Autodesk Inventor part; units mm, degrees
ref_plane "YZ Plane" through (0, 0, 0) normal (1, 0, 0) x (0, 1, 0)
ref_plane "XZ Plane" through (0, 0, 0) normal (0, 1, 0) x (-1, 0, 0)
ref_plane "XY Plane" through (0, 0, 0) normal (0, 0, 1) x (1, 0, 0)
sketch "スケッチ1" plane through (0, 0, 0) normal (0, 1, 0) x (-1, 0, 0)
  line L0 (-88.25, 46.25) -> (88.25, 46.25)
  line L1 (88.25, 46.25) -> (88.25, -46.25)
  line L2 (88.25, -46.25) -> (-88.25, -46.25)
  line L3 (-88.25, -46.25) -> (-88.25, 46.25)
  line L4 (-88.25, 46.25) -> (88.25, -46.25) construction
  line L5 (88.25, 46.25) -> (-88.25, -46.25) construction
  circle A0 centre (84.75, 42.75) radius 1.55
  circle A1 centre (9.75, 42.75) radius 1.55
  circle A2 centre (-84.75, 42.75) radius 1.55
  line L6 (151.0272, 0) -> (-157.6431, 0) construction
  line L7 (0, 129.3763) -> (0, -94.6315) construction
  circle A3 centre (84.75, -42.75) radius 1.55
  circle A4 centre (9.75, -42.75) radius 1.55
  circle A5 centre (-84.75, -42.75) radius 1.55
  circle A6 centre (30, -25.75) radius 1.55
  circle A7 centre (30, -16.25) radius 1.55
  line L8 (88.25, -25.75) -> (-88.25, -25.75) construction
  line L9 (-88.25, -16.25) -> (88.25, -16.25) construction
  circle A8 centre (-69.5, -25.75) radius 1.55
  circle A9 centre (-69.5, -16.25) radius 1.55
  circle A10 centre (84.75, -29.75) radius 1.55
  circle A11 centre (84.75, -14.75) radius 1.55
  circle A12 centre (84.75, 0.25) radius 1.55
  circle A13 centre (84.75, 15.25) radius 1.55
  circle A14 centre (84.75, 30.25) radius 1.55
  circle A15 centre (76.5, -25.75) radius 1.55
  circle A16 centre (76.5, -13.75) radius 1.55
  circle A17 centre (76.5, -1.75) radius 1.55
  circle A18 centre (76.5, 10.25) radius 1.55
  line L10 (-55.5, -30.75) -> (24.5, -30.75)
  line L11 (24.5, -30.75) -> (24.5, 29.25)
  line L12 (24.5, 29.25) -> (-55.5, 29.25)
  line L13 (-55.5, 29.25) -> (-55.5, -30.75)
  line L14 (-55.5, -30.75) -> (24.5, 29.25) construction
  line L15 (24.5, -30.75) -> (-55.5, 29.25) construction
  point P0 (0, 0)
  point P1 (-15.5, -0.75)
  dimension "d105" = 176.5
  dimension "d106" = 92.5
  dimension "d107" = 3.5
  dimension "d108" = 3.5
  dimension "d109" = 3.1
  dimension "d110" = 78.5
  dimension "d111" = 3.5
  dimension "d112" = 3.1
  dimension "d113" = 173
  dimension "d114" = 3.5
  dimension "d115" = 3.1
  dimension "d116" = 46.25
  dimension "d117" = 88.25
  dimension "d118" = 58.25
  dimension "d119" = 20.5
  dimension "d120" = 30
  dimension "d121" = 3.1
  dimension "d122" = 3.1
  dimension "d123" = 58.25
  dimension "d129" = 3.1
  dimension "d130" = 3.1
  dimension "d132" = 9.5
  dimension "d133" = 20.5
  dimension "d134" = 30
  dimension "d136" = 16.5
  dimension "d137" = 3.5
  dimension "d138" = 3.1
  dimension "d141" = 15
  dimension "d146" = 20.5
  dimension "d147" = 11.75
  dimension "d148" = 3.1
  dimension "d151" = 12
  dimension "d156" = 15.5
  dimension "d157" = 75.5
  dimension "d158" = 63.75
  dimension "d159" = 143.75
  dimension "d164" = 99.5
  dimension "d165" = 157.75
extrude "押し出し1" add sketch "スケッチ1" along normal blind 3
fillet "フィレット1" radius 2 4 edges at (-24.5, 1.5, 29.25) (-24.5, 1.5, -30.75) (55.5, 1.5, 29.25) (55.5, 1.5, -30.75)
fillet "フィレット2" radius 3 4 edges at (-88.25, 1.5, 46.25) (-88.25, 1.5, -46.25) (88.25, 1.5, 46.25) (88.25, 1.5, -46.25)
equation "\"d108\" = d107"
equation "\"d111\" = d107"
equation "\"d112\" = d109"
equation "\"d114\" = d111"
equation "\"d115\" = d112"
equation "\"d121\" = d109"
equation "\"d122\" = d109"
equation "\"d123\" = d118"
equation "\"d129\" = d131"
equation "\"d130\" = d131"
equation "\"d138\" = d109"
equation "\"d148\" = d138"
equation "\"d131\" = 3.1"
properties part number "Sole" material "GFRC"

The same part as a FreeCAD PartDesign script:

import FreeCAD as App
import Part
import Sketcher

V = App.Vector
Q = App.Units.Quantity


def edges_at(feature, points):
    """Names of the edges that pass closest to the given points."""
    edges = feature.Shape.Edges
    near = lambda p: min(range(len(edges)), key=lambda i: edges[i].distToShape(Part.Vertex(*p))[0])
    return sorted({f"Edge{near(p) + 1}" for p in points})

doc = App.newDocument("Part")
body = doc.addObject("PartDesign::Body", "Body")

# Sketch on XZ plane
sketch1 = doc.addObject("Sketcher::SketchObject", "Sketch")
body.addObject(sketch1)
sketch1.AttachmentSupport = (doc.XZ_Plane, [""])
sketch1.MapMode = "FlatFace"
sketch1.addGeometry(Part.LineSegment(V(-88.25, 46.25, 0), V(88.25, 46.25, 0)), False)
sketch1.addGeometry(Part.LineSegment(V(88.25, 46.25, 0), V(88.25, -46.25, 0)), False)
sketch1.addGeometry(Part.LineSegment(V(88.25, -46.25, 0), V(-88.25, -46.25, 0)), False)
sketch1.addGeometry(Part.LineSegment(V(-88.25, -46.25, 0), V(-88.25, 46.25, 0)), False)
sketch1.addGeometry(Part.Circle(V(84.75, -42.75, 0), V(0, 0, 1), 1.55), False)
sketch1.addGeometry(Part.Circle(V(69.5, -25.75, 0), V(0, 0, 1), 1.55), False)
sketch1.addGeometry(Part.Circle(V(69.5, -16.25, 0), V(0, 0, 1), 1.55), False)
sketch1.addGeometry(Part.LineSegment(V(-24.5, -30.75, 0), V(55.5, -30.75, 0)), False)
sketch1.addGeometry(Part.LineSegment(V(55.5, -30.75, 0), V(55.5, 29.25, 0)), False)
sketch1.addGeometry(Part.LineSegment(V(55.5, 29.25, 0), V(-24.5, 29.25, 0)), False)
sketch1.addGeometry(Part.LineSegment(V(-24.5, 29.25, 0), V(-24.5, -30.75, 0)), False)
sketch1.addGeometry(Part.Circle(V(-9.75, -42.75, 0), V(0, 0, 1), 1.55), False)
sketch1.addGeometry(Part.Circle(V(-30, -25.75, 0), V(0, 0, 1), 1.55), False)
sketch1.addGeometry(Part.Circle(V(-84.75, -42.75, 0), V(0, 0, 1), 1.55), False)
sketch1.addGeometry(Part.Circle(V(-84.75, -29.75, 0), V(0, 0, 1), 1.55), False)
sketch1.addGeometry(Part.Circle(V(-76.5, -25.75, 0), V(0, 0, 1), 1.55), False)
sketch1.addGeometry(Part.Circle(V(-30, -16.25, 0), V(0, 0, 1), 1.55), False)
sketch1.addGeometry(Part.Circle(V(-76.5, -13.75, 0), V(0, 0, 1), 1.55), False)
sketch1.addGeometry(Part.Circle(V(-84.75, -14.75, 0), V(0, 0, 1), 1.55), False)
sketch1.addGeometry(Part.Circle(V(-76.5, -1.75, 0), V(0, 0, 1), 1.55), False)
sketch1.addGeometry(Part.Circle(V(84.75, 42.75, 0), V(0, 0, 1), 1.55), False)
sketch1.addGeometry(Part.Circle(V(-84.75, 0.25, 0), V(0, 0, 1), 1.55), False)
sketch1.addGeometry(Part.Circle(V(-76.5, 10.25, 0), V(0, 0, 1), 1.55), False)
sketch1.addGeometry(Part.Circle(V(-84.75, 15.25, 0), V(0, 0, 1), 1.55), False)
sketch1.addGeometry(Part.Circle(V(-9.75, 42.75, 0), V(0, 0, 1), 1.55), False)
sketch1.addGeometry(Part.Circle(V(-84.75, 30.25, 0), V(0, 0, 1), 1.55), False)
sketch1.addGeometry(Part.Circle(V(-84.75, 42.75, 0), V(0, 0, 1), 1.55), False)
sketch1.addConstraint(Sketcher.Constraint("Coincident", 0, 2, 1, 1))
sketch1.addConstraint(Sketcher.Constraint("Coincident", 1, 2, 2, 1))
sketch1.addConstraint(Sketcher.Constraint("Coincident", 2, 2, 3, 1))
sketch1.addConstraint(Sketcher.Constraint("Coincident", 3, 2, 0, 1))
sketch1.addConstraint(Sketcher.Constraint("Coincident", 7, 2, 8, 1))
sketch1.addConstraint(Sketcher.Constraint("Coincident", 8, 2, 9, 1))
sketch1.addConstraint(Sketcher.Constraint("Coincident", 9, 2, 10, 1))
sketch1.addConstraint(Sketcher.Constraint("Coincident", 10, 2, 7, 1))
sketch1.addConstraint(Sketcher.Constraint("Horizontal", 0))
sketch1.addConstraint(Sketcher.Constraint("Vertical", 1))
sketch1.addConstraint(Sketcher.Constraint("Horizontal", 2))
sketch1.addConstraint(Sketcher.Constraint("Vertical", 3))
sketch1.addConstraint(Sketcher.Constraint("Horizontal", 7))
sketch1.addConstraint(Sketcher.Constraint("Vertical", 8))
sketch1.addConstraint(Sketcher.Constraint("Horizontal", 9))
sketch1.addConstraint(Sketcher.Constraint("Vertical", 10))
sketch1.addConstraint(Sketcher.Constraint("Equal", 4, 5))
sketch1.addConstraint(Sketcher.Constraint("Equal", 5, 6))
sketch1.addConstraint(Sketcher.Constraint("Equal", 6, 11))
sketch1.addConstraint(Sketcher.Constraint("Equal", 11, 12))
sketch1.addConstraint(Sketcher.Constraint("Equal", 12, 13))
sketch1.addConstraint(Sketcher.Constraint("Equal", 13, 14))
sketch1.addConstraint(Sketcher.Constraint("Equal", 14, 15))
sketch1.addConstraint(Sketcher.Constraint("Equal", 15, 16))
sketch1.addConstraint(Sketcher.Constraint("Equal", 16, 17))
sketch1.addConstraint(Sketcher.Constraint("Equal", 17, 18))
sketch1.addConstraint(Sketcher.Constraint("Equal", 18, 19))
sketch1.addConstraint(Sketcher.Constraint("Equal", 19, 20))
sketch1.addConstraint(Sketcher.Constraint("Equal", 20, 21))
sketch1.addConstraint(Sketcher.Constraint("Equal", 21, 22))
sketch1.addConstraint(Sketcher.Constraint("Equal", 22, 23))
sketch1.addConstraint(Sketcher.Constraint("Equal", 23, 24))
sketch1.addConstraint(Sketcher.Constraint("Equal", 24, 25))
sketch1.addConstraint(Sketcher.Constraint("Equal", 25, 26))
sketch1.addConstraint(Sketcher.Constraint("Symmetric", 13, 3, 20, 3, -1, 1))
sketch1.addConstraint(Sketcher.Constraint("Symmetric", 4, 3, 26, 3, -1, 1))
sketch1.addConstraint(Sketcher.Constraint("Symmetric", 0, 2, 2, 2, -1, 1))
sketch1.addConstraint(Sketcher.Constraint("Symmetric", 4, 3, 13, 3, -2))
sketch1.addConstraint(Sketcher.Constraint("Symmetric", 11, 3, 24, 3, -1))
sketch1.addConstraint(Sketcher.Constraint("Horizontal", 4, 3, 11, 3))
sketch1.addConstraint(Sketcher.Constraint("Horizontal", 5, 3, 12, 3))
sketch1.addConstraint(Sketcher.Constraint("Horizontal", 12, 3, 15, 3))
sketch1.addConstraint(Sketcher.Constraint("Horizontal", 6, 3, 16, 3))
sketch1.addConstraint(Sketcher.Constraint("Vertical", 5, 3, 6, 3))
sketch1.addConstraint(Sketcher.Constraint("Vertical", 13, 3, 14, 3))
sketch1.addConstraint(Sketcher.Constraint("Vertical", 12, 3, 16, 3))
sketch1.addConstraint(Sketcher.Constraint("Vertical", 15, 3, 17, 3))
sketch1.addConstraint(Sketcher.Constraint("Vertical", 14, 3, 18, 3))
sketch1.addConstraint(Sketcher.Constraint("Vertical", 17, 3, 19, 3))
sketch1.addConstraint(Sketcher.Constraint("Vertical", 18, 3, 21, 3))
sketch1.addConstraint(Sketcher.Constraint("Vertical", 19, 3, 22, 3))
sketch1.addConstraint(Sketcher.Constraint("Vertical", 21, 3, 23, 3))
sketch1.addConstraint(Sketcher.Constraint("Vertical", 23, 3, 25, 3))
sketch1.addConstraint(Sketcher.Constraint("Diameter", 4, Q("3.1 mm")))
sketch1.addConstraint(Sketcher.Constraint("DistanceX", 0, 1, 0, 2, Q("176.5 mm")))
sketch1.addConstraint(Sketcher.Constraint("DistanceY", 1, 2, 1, 1, Q("92.5 mm")))
sketch1.addConstraint(Sketcher.Constraint("DistanceX", 12, 3, -1, 1, Q("30 mm")))
sketch1.addConstraint(Sketcher.Constraint("DistanceY", 15, 3, 17, 3, Q("12 mm")))
sketch1.addConstraint(Sketcher.Constraint("DistanceY", 14, 3, 18, 3, Q("15 mm")))
sketch1.addConstraint(Sketcher.Constraint("DistanceY", 17, 3, 19, 3, Q("12 mm")))
sketch1.addConstraint(Sketcher.Constraint("DistanceY", 18, 3, 21, 3, Q("15 mm")))
sketch1.addConstraint(Sketcher.Constraint("DistanceY", 19, 3, 22, 3, Q("12 mm")))
sketch1.addConstraint(Sketcher.Constraint("DistanceY", 21, 3, 22, 3, Q("10 mm")))
sketch1.addConstraint(Sketcher.Constraint("DistanceY", 21, 3, 23, 3, Q("15 mm")))
sketch1.addConstraint(Sketcher.Constraint("DistanceY", 23, 3, 25, 3, Q("15 mm")))
sketch1.addConstraint(Sketcher.Constraint("DistanceY", 1, 2, 6, 3, Q("30 mm")))
sketch1.addConstraint(Sketcher.Constraint("DistanceY", 4, 3, 7, 2, Q("12 mm")))
sketch1.addConstraint(Sketcher.Constraint("DistanceY", 5, 3, 6, 3, Q("9.5 mm")))
sketch1.addConstraint(Sketcher.Constraint("DistanceX", 12, 3, 5, 3, Q("99.5 mm")))
sketch1.addConstraint(Sketcher.Constraint("DistanceX", 20, 3, 0, 2, Q("3.5 mm")))
sketch1.addConstraint(Sketcher.Constraint("DistanceY", 20, 3, 0, 2, Q("3.5 mm")))
sketch1.addConstraint(Sketcher.Constraint("DistanceX", 7, 1, 7, 2, Q("80 mm")))
sketch1.addConstraint(Sketcher.Constraint("DistanceY", 8, 1, 8, 2, Q("60 mm")))
sketch1.addConstraint(Sketcher.Constraint("DistanceX", 2, 2, 15, 3, Q("11.75 mm")))
sketch1.addConstraint(Sketcher.Constraint("DistanceX", 13, 3, 11, 3, Q("75 mm")))
sketch1.addConstraint(Sketcher.Constraint("DistanceX", 7, 2, 5, 3, Q("14 mm")))
pad1 = doc.addObject("PartDesign::Pad", "Pad")
body.addObject(pad1)
pad1.Profile = sketch1
pad1.Length = 3
pad1.Reversed = True
doc.recompute()

fillet = doc.addObject("PartDesign::Fillet", "Fillet")
body.addObject(fillet)
fillet.Base = (pad1, edges_at(pad1, [
    (-24.5, 1.5, 29.25),
    (-24.5, 1.5, -30.75),
    (55.5, 1.5, 29.25),
    (55.5, 1.5, -30.75),
]))
fillet.Radius = 2
doc.recompute()

fillet2 = doc.addObject("PartDesign::Fillet", "Fillet001")
body.addObject(fillet2)
fillet2.Base = (fillet, edges_at(fillet, [
    (-88.25, 1.5, 46.25),
    (-88.25, 1.5, -46.25),
    (88.25, 1.5, 46.25),
    (88.25, 1.5, -46.25),
]))
fillet2.Radius = 3

doc.recompute()
